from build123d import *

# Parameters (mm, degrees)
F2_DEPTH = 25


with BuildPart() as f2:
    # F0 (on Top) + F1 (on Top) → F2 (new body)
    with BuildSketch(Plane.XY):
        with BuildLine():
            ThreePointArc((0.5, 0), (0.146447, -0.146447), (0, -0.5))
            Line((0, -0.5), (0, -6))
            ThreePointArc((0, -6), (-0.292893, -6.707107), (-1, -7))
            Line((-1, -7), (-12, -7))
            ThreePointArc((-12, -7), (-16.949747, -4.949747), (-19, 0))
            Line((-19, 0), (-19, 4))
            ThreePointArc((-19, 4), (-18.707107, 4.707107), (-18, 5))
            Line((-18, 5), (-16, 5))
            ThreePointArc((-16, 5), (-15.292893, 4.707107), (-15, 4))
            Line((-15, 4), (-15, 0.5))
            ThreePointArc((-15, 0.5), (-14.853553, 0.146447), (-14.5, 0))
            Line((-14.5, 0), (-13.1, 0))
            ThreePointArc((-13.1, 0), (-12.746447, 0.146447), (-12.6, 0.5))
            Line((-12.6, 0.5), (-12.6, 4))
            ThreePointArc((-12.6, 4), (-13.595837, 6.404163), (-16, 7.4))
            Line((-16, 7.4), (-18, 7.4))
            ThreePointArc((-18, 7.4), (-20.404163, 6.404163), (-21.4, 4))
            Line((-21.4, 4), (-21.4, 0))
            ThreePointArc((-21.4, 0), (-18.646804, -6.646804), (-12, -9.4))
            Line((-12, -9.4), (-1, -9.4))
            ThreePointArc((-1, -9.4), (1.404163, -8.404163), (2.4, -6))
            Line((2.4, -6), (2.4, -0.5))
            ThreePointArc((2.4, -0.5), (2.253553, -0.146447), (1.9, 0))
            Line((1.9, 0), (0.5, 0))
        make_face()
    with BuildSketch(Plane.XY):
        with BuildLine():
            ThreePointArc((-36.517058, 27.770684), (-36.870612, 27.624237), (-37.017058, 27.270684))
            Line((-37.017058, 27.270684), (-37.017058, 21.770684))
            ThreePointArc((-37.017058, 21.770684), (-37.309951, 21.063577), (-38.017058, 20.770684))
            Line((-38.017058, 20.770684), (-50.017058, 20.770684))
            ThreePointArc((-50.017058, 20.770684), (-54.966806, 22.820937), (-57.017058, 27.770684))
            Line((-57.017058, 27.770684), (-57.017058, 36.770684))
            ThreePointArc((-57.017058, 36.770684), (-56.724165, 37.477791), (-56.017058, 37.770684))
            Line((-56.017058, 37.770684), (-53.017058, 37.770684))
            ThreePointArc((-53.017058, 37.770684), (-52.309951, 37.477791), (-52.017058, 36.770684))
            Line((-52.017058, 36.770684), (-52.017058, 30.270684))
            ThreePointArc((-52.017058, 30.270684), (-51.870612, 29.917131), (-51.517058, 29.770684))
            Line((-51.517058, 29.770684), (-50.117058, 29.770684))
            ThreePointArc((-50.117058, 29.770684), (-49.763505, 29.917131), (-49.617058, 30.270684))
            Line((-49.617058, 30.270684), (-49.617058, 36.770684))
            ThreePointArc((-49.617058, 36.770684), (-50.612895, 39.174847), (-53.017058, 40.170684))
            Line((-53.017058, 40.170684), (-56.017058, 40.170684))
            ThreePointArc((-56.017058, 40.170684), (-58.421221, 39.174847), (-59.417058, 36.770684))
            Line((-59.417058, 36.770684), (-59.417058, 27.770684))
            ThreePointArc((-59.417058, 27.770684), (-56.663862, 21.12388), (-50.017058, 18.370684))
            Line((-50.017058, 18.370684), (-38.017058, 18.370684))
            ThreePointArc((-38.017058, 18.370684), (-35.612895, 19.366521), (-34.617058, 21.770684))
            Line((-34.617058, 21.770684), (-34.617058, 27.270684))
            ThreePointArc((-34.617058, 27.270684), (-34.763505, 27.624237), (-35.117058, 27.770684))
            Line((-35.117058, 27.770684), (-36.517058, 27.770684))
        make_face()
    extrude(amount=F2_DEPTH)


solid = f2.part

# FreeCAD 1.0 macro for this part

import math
import FreeCAD as App
import Part
import Sketcher

V = App.Vector

doc = App.newDocument("Part")
body = doc.addObject("PartDesign::Body", "Body")
body.AllowCompound = True

# Sketch on XY plane
sketch1 = body.newObject("Sketcher::SketchObject", "Sketch")
sketch1.AttachmentSupport = (doc.getObject("XY_Plane"), [""])
sketch1.MapMode = "FlatFace"
sketch1.addGeometry([
    Part.ArcOfCircle(Part.Circle(V(0.5, -0.5, 0), V(0, 0, 1), 0.5), math.radians(90), math.radians(180)),  # 0
    Part.LineSegment(V(0, -0.5, 0), V(0, -6, 0)),  # 1
    Part.ArcOfCircle(Part.Circle(V(-1, -6, 0), V(0, 0, 1), 1), math.radians(-90), math.radians(0)),  # 2
    Part.LineSegment(V(-1, -7, 0), V(-12, -7, 0)),  # 3
    Part.ArcOfCircle(Part.Circle(V(-12, 0, 0), V(0, 0, 1), 7), math.radians(-180), math.radians(-90)),  # 4
    Part.LineSegment(V(-19, 0, 0), V(-19, 4, 0)),  # 5
    Part.ArcOfCircle(Part.Circle(V(-18, 4, 0), V(0, 0, 1), 1), math.radians(90), math.radians(180)),  # 6
    Part.LineSegment(V(-18, 5, 0), V(-16, 5, 0)),  # 7
    Part.ArcOfCircle(Part.Circle(V(-16, 4, 0), V(0, 0, 1), 1), math.radians(0), math.radians(90)),  # 8
    Part.LineSegment(V(-15, 4, 0), V(-15, 0.5, 0)),  # 9
    Part.ArcOfCircle(Part.Circle(V(-14.5, 0.5, 0), V(0, 0, 1), 0.5), math.radians(-180), math.radians(-90)),  # 10
    Part.LineSegment(V(-14.5, 0, 0), V(-13.1, 0, 0)),  # 11
    Part.ArcOfCircle(Part.Circle(V(-13.1, 0.5, 0), V(0, 0, 1), 0.5), math.radians(-90), math.radians(0)),  # 12
    Part.LineSegment(V(-12.6, 0.5, 0), V(-12.6, 4, 0)),  # 13
    Part.ArcOfCircle(Part.Circle(V(-16, 4, 0), V(0, 0, 1), 3.4), math.radians(0), math.radians(90)),  # 14
    Part.LineSegment(V(-16, 7.4, 0), V(-18, 7.4, 0)),  # 15
    Part.ArcOfCircle(Part.Circle(V(-18, 4, 0), V(0, 0, 1), 3.4), math.radians(90), math.radians(180)),  # 16
    Part.LineSegment(V(-21.4, 4, 0), V(-21.4, 0, 0)),  # 17
    Part.ArcOfCircle(Part.Circle(V(-12, 0, 0), V(0, 0, 1), 9.4), math.radians(180), math.radians(270)),  # 18
    Part.LineSegment(V(-12, -9.4, 0), V(-1, -9.4, 0)),  # 19
    Part.ArcOfCircle(Part.Circle(V(-1, -6, 0), V(0, 0, 1), 3.4), math.radians(-90), math.radians(0)),  # 20
    Part.LineSegment(V(2.4, -6, 0), V(2.4, -0.5, 0)),  # 21
    Part.ArcOfCircle(Part.Circle(V(1.9, -0.5, 0), V(0, 0, 1), 0.5), math.radians(0), math.radians(90)),  # 22
    Part.LineSegment(V(1.9, 0, 0), V(0.5, 0, 0)),  # 23
    Part.ArcOfCircle(Part.Circle(V(-36.52, 27.27, 0), V(0, 0, 1), 0.5), math.radians(90), math.radians(180)),  # 24
    Part.LineSegment(V(-37.02, 27.27, 0), V(-37.02, 21.77, 0)),  # 25
    Part.ArcOfCircle(Part.Circle(V(-38.02, 21.77, 0), V(0, 0, 1), 1), math.radians(-90), math.radians(0)),  # 26
    Part.LineSegment(V(-38.02, 20.77, 0), V(-50.02, 20.77, 0)),  # 27
    Part.ArcOfCircle(Part.Circle(V(-50.02, 27.77, 0), V(0, 0, 1), 7), math.radians(180), math.radians(270)),  # 28
    Part.LineSegment(V(-57.02, 27.77, 0), V(-57.02, 36.77, 0)),  # 29
    Part.ArcOfCircle(Part.Circle(V(-56.02, 36.77, 0), V(0, 0, 1), 1), math.radians(90), math.radians(180)),  # 30
    Part.LineSegment(V(-56.02, 37.77, 0), V(-53.02, 37.77, 0)),  # 31
    Part.ArcOfCircle(Part.Circle(V(-53.02, 36.77, 0), V(0, 0, 1), 1), math.radians(0), math.radians(90)),  # 32
    Part.LineSegment(V(-52.02, 36.77, 0), V(-52.02, 30.27, 0)),  # 33
    Part.ArcOfCircle(Part.Circle(V(-51.52, 30.27, 0), V(0, 0, 1), 0.5), math.radians(180), math.radians(270)),  # 34
    Part.LineSegment(V(-51.52, 29.77, 0), V(-50.12, 29.77, 0)),  # 35
    Part.ArcOfCircle(Part.Circle(V(-50.12, 30.27, 0), V(0, 0, 1), 0.5), math.radians(-90), math.radians(0)),  # 36
    Part.LineSegment(V(-49.62, 30.27, 0), V(-49.62, 36.77, 0)),  # 37
    Part.ArcOfCircle(Part.Circle(V(-53.02, 36.77, 0), V(0, 0, 1), 3.4), math.radians(0), math.radians(90)),  # 38
    Part.LineSegment(V(-53.02, 40.17, 0), V(-56.02, 40.17, 0)),  # 39
    Part.ArcOfCircle(Part.Circle(V(-56.02, 36.77, 0), V(0, 0, 1), 3.4), math.radians(90), math.radians(180)),  # 40
    Part.LineSegment(V(-59.42, 36.77, 0), V(-59.42, 27.77, 0)),  # 41
    Part.ArcOfCircle(Part.Circle(V(-50.02, 27.77, 0), V(0, 0, 1), 9.4), math.radians(180), math.radians(270)),  # 42
    Part.LineSegment(V(-50.02, 18.37, 0), V(-38.02, 18.37, 0)),  # 43
    Part.ArcOfCircle(Part.Circle(V(-38.02, 21.77, 0), V(0, 0, 1), 3.4), math.radians(-90), math.radians(0)),  # 44
    Part.LineSegment(V(-34.62, 21.77, 0), V(-34.62, 27.27, 0)),  # 45
    Part.ArcOfCircle(Part.Circle(V(-35.12, 27.27, 0), V(0, 0, 1), 0.5), math.radians(0), math.radians(90)),  # 46
    Part.LineSegment(V(-35.12, 27.77, 0), V(-36.52, 27.77, 0)),  # 47
], False)
sketch1.addConstraint([
    Sketcher.Constraint("Coincident", 0, 2, 1, 1),
    Sketcher.Constraint("Tangent", 1, 2, 2, 2),
    Sketcher.Constraint("Tangent", 2, 1, 3, 1),
    Sketcher.Constraint("Tangent", 3, 2, 4, 2),
    Sketcher.Constraint("Tangent", 4, 1, 5, 1),
    Sketcher.Constraint("Tangent", 5, 2, 6, 2),
    Sketcher.Constraint("Tangent", 6, 1, 7, 1),
    Sketcher.Constraint("Tangent", 7, 2, 8, 2),
    Sketcher.Constraint("Tangent", 8, 1, 9, 1),
    Sketcher.Constraint("Coincident", 9, 2, 10, 1),
    Sketcher.Constraint("Coincident", 10, 2, 11, 1),
    Sketcher.Constraint("Coincident", 11, 2, 12, 1),
    Sketcher.Constraint("Coincident", 12, 2, 13, 1),
    Sketcher.Constraint("Tangent", 13, 2, 14, 1),
    Sketcher.Constraint("Tangent", 14, 2, 15, 1),
    Sketcher.Constraint("Tangent", 15, 2, 16, 1),
    Sketcher.Constraint("Tangent", 16, 2, 17, 1),
    Sketcher.Constraint("Tangent", 17, 2, 18, 1),
    Sketcher.Constraint("Tangent", 18, 2, 19, 1),
    Sketcher.Constraint("Tangent", 19, 2, 20, 1),
    Sketcher.Constraint("Tangent", 20, 2, 21, 1),
    Sketcher.Constraint("Coincident", 21, 2, 22, 1),
    Sketcher.Constraint("Coincident", 22, 2, 23, 1),
    Sketcher.Constraint("Coincident", 23, 2, 0, 1),
    Sketcher.Constraint("Tangent", 24, 2, 25, 1),
    Sketcher.Constraint("Tangent", 25, 2, 26, 2),
    Sketcher.Constraint("Tangent", 26, 1, 27, 1),
    Sketcher.Constraint("Tangent", 27, 2, 28, 2),
    Sketcher.Constraint("Tangent", 28, 1, 29, 1),
    Sketcher.Constraint("Tangent", 29, 2, 30, 2),
    Sketcher.Constraint("Tangent", 30, 1, 31, 1),
    Sketcher.Constraint("Tangent", 31, 2, 32, 2),
    Sketcher.Constraint("Tangent", 32, 1, 33, 1),
    Sketcher.Constraint("Tangent", 33, 2, 34, 1),
    Sketcher.Constraint("Tangent", 34, 2, 35, 1),
    Sketcher.Constraint("Coincident", 35, 2, 36, 1),
    Sketcher.Constraint("Coincident", 36, 2, 37, 1),
    Sketcher.Constraint("Tangent", 37, 2, 38, 1),
    Sketcher.Constraint("Tangent", 38, 2, 39, 1),
    Sketcher.Constraint("Tangent", 39, 2, 40, 1),
    Sketcher.Constraint("Tangent", 40, 2, 41, 1),
    Sketcher.Constraint("Tangent", 41, 2, 42, 1),
    Sketcher.Constraint("Tangent", 42, 2, 43, 1),
    Sketcher.Constraint("Tangent", 43, 2, 44, 1),
    Sketcher.Constraint("Tangent", 44, 2, 45, 1),
    Sketcher.Constraint("Coincident", 45, 2, 46, 1),
    Sketcher.Constraint("Coincident", 46, 2, 47, 1),
    Sketcher.Constraint("Tangent", 47, 2, 24, 1),
    Sketcher.Constraint("Vertical", 1),
    Sketcher.Constraint("Horizontal", 3),
    Sketcher.Constraint("Vertical", 5),
    Sketcher.Constraint("Horizontal", 7),
    Sketcher.Constraint("Vertical", 9),
    Sketcher.Constraint("Horizontal", 11),
    Sketcher.Constraint("Vertical", 13),
    Sketcher.Constraint("Horizontal", 15),
    Sketcher.Constraint("Vertical", 17),
    Sketcher.Constraint("Horizontal", 19),
    Sketcher.Constraint("Vertical", 21),
    Sketcher.Constraint("Horizontal", 23),
    Sketcher.Constraint("Vertical", 25),
    Sketcher.Constraint("Horizontal", 27),
    Sketcher.Constraint("Vertical", 29),
    Sketcher.Constraint("Horizontal", 31),
    Sketcher.Constraint("Vertical", 33),
    Sketcher.Constraint("Horizontal", 35),
    Sketcher.Constraint("Vertical", 37),
    Sketcher.Constraint("Horizontal", 39),
    Sketcher.Constraint("Vertical", 41),
    Sketcher.Constraint("Horizontal", 43),
    Sketcher.Constraint("Vertical", 45),
    Sketcher.Constraint("Horizontal", 47),
    Sketcher.Constraint("Coincident", 14, 3, 8, 3),
    Sketcher.Constraint("Coincident", 16, 3, 6, 3),
    Sketcher.Constraint("Coincident", 18, 3, 4, 3),
    Sketcher.Constraint("Coincident", 20, 3, 2, 3),
    Sketcher.Constraint("Coincident", 38, 3, 32, 3),
    Sketcher.Constraint("Coincident", 40, 3, 30, 3),
    Sketcher.Constraint("Coincident", 42, 3, 28, 3),
    Sketcher.Constraint("Coincident", 44, 3, 26, 3),
    Sketcher.Constraint("Equal", 2, 6),
    Sketcher.Constraint("Equal", 6, 8),
    Sketcher.Constraint("Equal", 0, 10),
    Sketcher.Constraint("Equal", 10, 12),
    Sketcher.Constraint("Equal", 12, 22),
    Sketcher.Constraint("Equal", 22, 24),
    Sketcher.Constraint("Equal", 8, 26),
    Sketcher.Constraint("Equal", 4, 28),
    Sketcher.Constraint("Equal", 26, 30),
    Sketcher.Constraint("Equal", 30, 32),
    Sketcher.Constraint("Equal", 24, 34),
    Sketcher.Constraint("Equal", 34, 36),
    Sketcher.Constraint("Equal", 20, 38),
    Sketcher.Constraint("Equal", 36, 46),
    Sketcher.Constraint("PointOnObject", 4, 3, -1),
    Sketcher.Constraint("PointOnObject", 0, 2, -2),
    Sketcher.Constraint("PointOnObject", 10, 2, -1),
    Sketcher.Constraint("PointOnObject", 22, 2, -1),
    Sketcher.Constraint("Horizontal", 22, 3, 0, 2),
    Sketcher.Constraint("Horizontal", 12, 3, 9, 2),
    Sketcher.Constraint("Horizontal", 9, 2, 12, 2),
    Sketcher.Constraint("Horizontal", 0, 2, 21, 2),
    Sketcher.Constraint("Horizontal", 33, 2, 36, 2),
    Sketcher.Constraint("Horizontal", 24, 2, 45, 2),
    Sketcher.Constraint("Horizontal", 41, 2, 46, 2),
    Sketcher.Constraint("Vertical", 12, 3, 11, 2),
    Sketcher.Constraint("Vertical", 0, 3, 23, 2),
    Sketcher.Constraint("Vertical", 36, 3, 35, 2),
    Sketcher.Constraint("Equal", 11, 23),
    Sketcher.Constraint("Equal", 23, 35),
    Sketcher.Constraint("Equal", 35, 47),
    Sketcher.Constraint("Radius", 2, 0.999999),
    Sketcher.Constraint("Radius", 4, 7.000002),
    Sketcher.Constraint("Radius", 0, 0.500001),
    Sketcher.Constraint("Radius", 14, 3.4),
    Sketcher.Constraint("DistanceX", 3, 2, 3, 1, 11.0),
    Sketcher.Constraint("DistanceX", 7, 1, 7, 2, 2.0),
    Sketcher.Constraint("DistanceX", 27, 2, 27, 1, 12.0),
    Sketcher.Constraint("DistanceX", 31, 1, 31, 2, 3.0),
    Sketcher.Constraint("DistanceY", 5, 1, 5, 2, 4.0),
    Sketcher.Constraint("DistanceY", 29, 1, 29, 2, 9.0),
    Sketcher.Constraint("DistanceY", 33, 2, 33, 1, 6.5),
    Sketcher.Constraint("DistanceX", 24, 3, -1, 1, 36.517058),
    Sketcher.Constraint("DistanceY", -1, 1, 24, 3, 27.270684),
])
pad1 = body.newObject("PartDesign::Pad", "Pad")
pad1.Profile = sketch1
pad1.Length = 25

doc.recompute()
